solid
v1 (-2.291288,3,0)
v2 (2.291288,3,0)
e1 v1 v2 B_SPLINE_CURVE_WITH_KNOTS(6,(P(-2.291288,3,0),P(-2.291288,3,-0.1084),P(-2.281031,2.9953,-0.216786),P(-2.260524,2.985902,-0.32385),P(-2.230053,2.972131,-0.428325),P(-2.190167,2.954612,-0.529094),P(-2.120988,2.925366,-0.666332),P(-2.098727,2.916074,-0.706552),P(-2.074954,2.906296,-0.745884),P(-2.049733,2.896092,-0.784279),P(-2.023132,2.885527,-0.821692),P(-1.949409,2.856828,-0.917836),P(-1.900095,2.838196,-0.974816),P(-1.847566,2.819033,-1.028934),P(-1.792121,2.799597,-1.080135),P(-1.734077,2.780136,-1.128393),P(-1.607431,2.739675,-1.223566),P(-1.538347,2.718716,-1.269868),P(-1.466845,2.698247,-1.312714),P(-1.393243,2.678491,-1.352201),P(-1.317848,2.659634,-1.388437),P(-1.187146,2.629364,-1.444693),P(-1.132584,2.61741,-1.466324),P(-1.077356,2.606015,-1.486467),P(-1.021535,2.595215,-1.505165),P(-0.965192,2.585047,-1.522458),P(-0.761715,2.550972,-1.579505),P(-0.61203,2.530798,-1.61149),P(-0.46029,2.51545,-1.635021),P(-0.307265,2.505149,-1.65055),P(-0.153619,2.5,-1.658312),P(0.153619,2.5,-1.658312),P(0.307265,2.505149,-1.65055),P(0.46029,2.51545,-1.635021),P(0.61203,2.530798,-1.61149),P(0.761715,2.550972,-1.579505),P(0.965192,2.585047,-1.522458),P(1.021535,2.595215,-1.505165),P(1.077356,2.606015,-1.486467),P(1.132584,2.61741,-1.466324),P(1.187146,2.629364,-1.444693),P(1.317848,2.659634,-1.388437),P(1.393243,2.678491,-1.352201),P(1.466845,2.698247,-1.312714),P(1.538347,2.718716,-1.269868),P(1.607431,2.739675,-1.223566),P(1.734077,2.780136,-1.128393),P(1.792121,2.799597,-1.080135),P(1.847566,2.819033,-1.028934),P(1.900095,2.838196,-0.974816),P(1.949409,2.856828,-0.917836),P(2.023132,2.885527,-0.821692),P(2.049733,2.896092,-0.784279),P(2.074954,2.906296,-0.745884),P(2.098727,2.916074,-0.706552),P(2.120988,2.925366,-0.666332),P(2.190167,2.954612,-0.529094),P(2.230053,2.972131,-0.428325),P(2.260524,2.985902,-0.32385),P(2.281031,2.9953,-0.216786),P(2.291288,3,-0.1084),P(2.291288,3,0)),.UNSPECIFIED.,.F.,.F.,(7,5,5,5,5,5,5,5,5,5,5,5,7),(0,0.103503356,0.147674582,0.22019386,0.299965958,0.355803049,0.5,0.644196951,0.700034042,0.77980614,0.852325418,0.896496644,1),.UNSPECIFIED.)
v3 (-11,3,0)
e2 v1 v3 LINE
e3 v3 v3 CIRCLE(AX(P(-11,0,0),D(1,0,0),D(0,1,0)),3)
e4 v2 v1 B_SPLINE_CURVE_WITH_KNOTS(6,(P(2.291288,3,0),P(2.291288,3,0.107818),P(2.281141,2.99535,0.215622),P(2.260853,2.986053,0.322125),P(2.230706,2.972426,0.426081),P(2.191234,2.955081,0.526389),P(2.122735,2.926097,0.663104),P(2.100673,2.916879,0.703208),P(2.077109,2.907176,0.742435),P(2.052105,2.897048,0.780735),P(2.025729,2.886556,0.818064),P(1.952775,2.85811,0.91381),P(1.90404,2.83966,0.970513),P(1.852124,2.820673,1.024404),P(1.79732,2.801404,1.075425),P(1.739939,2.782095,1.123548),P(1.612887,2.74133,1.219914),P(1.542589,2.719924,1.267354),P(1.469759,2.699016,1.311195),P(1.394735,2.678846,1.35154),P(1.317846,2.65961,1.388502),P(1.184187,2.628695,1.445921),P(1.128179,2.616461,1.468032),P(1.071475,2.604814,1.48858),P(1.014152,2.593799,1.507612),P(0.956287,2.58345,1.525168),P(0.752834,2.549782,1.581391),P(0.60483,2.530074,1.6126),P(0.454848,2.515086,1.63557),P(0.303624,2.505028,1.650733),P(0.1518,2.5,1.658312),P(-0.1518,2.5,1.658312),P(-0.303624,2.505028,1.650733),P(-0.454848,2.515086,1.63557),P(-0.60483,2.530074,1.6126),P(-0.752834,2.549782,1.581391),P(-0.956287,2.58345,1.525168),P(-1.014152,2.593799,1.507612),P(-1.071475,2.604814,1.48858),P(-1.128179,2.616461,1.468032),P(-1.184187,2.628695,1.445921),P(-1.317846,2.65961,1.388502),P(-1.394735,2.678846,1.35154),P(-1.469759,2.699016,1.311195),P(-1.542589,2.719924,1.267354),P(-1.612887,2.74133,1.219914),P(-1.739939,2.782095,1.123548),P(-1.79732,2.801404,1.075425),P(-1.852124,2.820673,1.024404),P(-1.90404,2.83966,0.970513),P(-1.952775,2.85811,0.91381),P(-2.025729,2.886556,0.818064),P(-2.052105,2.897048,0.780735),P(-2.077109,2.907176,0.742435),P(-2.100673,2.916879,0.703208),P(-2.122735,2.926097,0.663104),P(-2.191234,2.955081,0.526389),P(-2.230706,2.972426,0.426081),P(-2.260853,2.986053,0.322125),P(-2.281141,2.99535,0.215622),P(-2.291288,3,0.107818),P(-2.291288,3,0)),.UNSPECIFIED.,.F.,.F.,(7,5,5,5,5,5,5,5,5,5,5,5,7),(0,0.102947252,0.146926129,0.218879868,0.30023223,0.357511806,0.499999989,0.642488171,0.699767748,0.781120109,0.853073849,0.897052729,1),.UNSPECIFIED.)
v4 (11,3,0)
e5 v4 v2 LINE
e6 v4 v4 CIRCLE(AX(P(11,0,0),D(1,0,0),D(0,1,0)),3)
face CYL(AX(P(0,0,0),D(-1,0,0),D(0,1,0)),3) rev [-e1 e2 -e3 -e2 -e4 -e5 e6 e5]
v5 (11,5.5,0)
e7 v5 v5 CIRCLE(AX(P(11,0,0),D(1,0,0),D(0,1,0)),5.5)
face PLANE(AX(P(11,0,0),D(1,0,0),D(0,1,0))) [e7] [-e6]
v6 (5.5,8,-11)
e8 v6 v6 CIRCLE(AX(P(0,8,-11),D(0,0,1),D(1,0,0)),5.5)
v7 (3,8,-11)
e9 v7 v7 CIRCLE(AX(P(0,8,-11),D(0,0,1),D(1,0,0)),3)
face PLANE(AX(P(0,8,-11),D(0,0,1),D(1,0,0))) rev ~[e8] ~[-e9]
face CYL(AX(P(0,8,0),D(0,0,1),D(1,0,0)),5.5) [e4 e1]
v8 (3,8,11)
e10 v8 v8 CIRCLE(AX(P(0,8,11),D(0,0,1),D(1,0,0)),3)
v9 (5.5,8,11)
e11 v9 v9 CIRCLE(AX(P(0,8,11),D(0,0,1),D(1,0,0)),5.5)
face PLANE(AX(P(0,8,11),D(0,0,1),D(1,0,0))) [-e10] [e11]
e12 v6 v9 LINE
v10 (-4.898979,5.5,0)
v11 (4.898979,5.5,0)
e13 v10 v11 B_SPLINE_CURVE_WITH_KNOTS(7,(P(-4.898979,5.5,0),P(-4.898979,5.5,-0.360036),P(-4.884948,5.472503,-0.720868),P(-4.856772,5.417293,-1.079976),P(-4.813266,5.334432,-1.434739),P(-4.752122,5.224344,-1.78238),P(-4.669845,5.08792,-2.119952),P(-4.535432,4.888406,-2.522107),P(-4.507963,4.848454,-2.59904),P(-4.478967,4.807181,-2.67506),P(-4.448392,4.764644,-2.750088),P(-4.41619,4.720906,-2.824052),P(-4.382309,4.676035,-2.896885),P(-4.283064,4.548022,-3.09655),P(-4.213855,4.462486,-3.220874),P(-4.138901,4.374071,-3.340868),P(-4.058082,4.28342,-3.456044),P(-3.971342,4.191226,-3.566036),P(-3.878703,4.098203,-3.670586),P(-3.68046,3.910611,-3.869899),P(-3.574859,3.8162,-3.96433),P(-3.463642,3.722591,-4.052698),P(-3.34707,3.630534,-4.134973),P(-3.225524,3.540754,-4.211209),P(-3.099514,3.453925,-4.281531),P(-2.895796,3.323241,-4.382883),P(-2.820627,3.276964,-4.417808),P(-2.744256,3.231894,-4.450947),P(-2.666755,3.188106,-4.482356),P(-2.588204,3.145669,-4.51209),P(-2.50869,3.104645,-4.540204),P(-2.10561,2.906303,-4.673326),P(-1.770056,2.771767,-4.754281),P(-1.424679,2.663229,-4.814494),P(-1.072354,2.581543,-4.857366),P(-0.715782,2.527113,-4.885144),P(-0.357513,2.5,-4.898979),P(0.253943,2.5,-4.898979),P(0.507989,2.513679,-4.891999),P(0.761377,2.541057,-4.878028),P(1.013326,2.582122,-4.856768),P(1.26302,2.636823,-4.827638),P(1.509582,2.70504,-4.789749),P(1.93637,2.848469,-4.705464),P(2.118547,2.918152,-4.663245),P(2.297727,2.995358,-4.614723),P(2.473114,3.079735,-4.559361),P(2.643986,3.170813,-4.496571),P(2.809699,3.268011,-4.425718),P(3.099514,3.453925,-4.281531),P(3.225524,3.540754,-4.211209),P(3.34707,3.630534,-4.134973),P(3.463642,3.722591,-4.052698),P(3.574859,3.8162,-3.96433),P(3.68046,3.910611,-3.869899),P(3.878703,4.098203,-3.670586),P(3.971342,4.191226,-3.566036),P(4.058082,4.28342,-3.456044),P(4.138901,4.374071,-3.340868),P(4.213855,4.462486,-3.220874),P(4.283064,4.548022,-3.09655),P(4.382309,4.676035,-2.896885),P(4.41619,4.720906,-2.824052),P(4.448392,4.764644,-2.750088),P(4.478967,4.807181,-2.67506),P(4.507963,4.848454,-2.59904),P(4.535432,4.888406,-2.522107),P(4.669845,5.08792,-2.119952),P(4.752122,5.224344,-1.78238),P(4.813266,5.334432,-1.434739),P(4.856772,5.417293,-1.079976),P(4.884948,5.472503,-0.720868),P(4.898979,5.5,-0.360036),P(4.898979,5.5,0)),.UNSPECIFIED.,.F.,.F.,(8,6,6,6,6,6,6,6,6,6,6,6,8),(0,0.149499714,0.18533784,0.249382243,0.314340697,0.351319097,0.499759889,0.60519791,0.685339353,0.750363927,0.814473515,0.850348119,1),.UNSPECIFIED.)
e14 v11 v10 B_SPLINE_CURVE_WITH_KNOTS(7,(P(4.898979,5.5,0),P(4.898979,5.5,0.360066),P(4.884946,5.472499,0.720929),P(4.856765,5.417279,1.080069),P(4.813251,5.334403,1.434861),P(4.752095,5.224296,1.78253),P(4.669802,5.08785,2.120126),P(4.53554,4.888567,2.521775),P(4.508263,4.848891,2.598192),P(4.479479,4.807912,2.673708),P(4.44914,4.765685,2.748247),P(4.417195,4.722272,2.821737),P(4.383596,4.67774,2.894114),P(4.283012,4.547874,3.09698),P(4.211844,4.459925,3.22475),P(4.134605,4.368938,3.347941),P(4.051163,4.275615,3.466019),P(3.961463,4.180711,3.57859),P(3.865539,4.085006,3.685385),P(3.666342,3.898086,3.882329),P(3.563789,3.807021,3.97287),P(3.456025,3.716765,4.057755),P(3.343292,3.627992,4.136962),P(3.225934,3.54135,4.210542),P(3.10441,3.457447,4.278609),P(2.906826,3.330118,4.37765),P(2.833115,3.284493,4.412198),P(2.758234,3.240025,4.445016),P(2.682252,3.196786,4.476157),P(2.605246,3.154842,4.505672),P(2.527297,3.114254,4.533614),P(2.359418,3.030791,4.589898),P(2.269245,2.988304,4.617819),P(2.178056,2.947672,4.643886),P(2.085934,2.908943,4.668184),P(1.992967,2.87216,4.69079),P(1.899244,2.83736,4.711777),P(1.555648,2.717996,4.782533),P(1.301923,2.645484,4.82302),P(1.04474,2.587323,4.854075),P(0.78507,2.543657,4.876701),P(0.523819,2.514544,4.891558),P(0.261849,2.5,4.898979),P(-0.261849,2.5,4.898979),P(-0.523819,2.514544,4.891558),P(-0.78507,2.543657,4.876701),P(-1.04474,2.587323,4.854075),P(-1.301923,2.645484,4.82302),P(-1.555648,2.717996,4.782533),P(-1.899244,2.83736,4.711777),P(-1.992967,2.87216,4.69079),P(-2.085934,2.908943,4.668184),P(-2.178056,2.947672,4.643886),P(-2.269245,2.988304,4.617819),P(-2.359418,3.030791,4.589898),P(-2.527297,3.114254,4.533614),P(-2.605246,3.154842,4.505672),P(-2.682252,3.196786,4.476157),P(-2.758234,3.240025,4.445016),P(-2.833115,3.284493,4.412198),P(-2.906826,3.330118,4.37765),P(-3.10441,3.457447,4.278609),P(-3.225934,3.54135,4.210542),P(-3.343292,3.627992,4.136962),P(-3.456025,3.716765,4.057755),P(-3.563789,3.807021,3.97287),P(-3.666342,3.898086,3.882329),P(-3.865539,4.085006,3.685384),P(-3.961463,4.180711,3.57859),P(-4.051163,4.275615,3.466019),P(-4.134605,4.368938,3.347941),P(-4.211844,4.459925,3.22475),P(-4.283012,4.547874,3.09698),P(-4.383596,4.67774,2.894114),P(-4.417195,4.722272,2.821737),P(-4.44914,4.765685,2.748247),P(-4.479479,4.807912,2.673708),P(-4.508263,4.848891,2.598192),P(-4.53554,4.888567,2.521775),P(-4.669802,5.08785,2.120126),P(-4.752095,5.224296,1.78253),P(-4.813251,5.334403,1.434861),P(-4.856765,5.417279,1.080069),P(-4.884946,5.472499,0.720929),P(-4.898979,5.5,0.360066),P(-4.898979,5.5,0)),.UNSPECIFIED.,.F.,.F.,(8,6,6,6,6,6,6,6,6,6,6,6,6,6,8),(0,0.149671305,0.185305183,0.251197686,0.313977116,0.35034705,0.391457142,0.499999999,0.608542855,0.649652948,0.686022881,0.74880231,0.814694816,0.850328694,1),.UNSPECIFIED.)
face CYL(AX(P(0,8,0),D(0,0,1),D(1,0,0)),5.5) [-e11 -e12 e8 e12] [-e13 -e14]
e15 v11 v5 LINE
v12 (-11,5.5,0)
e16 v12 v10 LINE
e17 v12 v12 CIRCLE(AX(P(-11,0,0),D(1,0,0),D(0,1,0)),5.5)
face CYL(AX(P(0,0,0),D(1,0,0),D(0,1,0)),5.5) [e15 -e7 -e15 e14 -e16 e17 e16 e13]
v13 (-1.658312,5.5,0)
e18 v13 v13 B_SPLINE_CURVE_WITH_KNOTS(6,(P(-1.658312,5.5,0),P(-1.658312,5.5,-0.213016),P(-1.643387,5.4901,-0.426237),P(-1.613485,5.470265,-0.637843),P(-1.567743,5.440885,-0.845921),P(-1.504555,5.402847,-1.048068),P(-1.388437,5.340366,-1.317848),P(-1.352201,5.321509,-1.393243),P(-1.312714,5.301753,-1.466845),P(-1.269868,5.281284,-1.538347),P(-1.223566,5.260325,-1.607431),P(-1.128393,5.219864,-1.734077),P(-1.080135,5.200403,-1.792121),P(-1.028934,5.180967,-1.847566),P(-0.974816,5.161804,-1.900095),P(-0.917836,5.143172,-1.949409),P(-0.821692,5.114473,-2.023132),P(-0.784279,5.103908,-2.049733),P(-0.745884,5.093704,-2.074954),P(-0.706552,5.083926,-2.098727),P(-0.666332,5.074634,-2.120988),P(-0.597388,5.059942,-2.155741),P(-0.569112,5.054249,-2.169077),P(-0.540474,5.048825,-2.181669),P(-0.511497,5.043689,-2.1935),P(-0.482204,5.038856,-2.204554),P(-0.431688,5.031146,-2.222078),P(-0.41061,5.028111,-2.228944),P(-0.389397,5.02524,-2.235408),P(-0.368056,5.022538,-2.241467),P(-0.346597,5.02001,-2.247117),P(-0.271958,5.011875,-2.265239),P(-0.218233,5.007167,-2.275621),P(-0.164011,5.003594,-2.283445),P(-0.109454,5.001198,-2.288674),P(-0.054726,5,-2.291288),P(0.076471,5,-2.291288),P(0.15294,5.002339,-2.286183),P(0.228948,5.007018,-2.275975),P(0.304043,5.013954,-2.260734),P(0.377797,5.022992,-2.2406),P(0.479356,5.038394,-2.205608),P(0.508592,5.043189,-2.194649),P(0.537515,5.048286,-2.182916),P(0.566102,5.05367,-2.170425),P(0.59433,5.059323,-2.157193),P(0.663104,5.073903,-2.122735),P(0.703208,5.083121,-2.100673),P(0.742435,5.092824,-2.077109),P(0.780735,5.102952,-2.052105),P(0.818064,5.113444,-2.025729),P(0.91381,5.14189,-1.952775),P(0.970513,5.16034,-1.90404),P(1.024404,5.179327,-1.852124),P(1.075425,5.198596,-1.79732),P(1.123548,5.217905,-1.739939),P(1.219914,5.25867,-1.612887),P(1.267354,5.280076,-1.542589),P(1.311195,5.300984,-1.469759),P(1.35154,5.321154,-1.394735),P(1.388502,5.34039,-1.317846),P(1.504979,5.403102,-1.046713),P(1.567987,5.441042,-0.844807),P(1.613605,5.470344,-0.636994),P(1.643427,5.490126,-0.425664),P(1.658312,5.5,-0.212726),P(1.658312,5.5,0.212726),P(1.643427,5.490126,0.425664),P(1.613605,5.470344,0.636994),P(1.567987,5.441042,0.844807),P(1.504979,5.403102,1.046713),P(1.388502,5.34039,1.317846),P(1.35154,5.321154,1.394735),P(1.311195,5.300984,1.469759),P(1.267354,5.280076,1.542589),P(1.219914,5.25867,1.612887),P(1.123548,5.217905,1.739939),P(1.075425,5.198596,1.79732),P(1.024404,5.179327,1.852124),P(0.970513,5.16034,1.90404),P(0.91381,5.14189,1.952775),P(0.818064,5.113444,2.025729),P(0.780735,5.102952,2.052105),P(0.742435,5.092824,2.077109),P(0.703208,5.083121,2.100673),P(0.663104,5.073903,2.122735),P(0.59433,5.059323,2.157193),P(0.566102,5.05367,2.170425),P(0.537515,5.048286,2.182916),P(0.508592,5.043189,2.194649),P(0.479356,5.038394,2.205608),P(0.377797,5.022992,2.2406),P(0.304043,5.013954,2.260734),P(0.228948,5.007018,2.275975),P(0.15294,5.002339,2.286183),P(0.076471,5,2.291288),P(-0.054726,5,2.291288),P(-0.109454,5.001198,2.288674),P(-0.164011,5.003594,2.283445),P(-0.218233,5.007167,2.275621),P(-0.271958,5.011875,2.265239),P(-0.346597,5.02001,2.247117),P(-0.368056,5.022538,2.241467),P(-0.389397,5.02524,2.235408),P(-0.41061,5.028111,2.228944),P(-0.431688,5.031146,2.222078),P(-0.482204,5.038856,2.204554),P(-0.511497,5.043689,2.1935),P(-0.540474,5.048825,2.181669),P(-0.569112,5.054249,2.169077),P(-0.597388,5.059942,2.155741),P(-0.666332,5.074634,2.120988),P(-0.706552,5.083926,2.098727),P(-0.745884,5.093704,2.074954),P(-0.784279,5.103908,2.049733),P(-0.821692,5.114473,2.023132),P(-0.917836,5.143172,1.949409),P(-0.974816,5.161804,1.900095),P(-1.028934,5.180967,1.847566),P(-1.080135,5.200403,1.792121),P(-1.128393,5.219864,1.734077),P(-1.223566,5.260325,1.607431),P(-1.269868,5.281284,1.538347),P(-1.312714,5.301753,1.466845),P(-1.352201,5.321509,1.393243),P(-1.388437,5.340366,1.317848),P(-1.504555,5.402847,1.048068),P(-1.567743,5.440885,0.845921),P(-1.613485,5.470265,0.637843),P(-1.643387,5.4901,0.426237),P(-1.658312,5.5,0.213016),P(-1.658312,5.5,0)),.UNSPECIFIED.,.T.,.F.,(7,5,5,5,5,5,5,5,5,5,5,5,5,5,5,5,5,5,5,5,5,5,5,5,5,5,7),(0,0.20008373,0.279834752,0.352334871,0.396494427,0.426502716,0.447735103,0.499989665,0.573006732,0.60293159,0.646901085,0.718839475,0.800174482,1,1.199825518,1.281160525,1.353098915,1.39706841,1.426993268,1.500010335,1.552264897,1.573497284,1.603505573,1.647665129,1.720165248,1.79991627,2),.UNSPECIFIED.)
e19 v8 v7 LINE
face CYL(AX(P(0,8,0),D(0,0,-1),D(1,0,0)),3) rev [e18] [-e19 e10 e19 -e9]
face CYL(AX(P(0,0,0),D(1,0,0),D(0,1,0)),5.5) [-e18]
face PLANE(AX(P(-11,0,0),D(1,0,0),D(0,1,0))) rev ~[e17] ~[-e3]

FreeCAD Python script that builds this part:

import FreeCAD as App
import Part
import Sketcher
from FreeCAD import Vector
Q = App.Units.Quantity

doc = App.newDocument("Part")
params = doc.addObject("Spreadsheet::Sheet", "Params")
for row, (alias, value) in enumerate([
    ("sketch1_diameter", "11 mm"),
    ("sketch1_diameter2", "6 mm"),
    ("pad1_length", "22 mm"),
    ("sketch2_diameter", "11 mm"),
    ("sketch2_diameter2", "6 mm"),
    ("pad2_length", "22 mm"),
], start=1):
    params.set(f"A{row}", alias)
    params.set(f"B{row}", "=" + value)
    params.setAlias(f"B{row}", alias)

body = doc.addObject("PartDesign::Body", "Body")

# Sketch on YZ plane
sketch1 = body.newObject("Sketcher::SketchObject", "Sketch")
sketch1.AttachmentSupport = (doc.getObject("YZ_Plane"), [""])
sketch1.MapMode = "FlatFace"
sketch1.addGeometry(Part.Circle(Vector(0, 0, 0), Vector(0, 0, 1), 5.5), False)
sketch1.addGeometry(Part.Circle(Vector(0, 0, 0), Vector(0, 0, 1), 3), False)
sketch1.addConstraint(Sketcher.Constraint("Coincident", 0, 3, -1, 1))
sketch1.addConstraint(Sketcher.Constraint("Coincident", 1, 3, -1, 1))
sketch1.addConstraint(Sketcher.Constraint("Diameter", 0, Q("11 mm")))
sketch1.addConstraint(Sketcher.Constraint("Diameter", 1, Q("6 mm")))
sketch1.setExpression("Constraints[2]", "Params.sketch1_diameter")
sketch1.setExpression("Constraints[3]", "Params.sketch1_diameter2")
pad1 = body.newObject("PartDesign::Pad", "Pad")
pad1.Profile = sketch1
pad1.setExpression("Length", "Params.pad1_length")
pad1.Midplane = True

# Sketch on XY plane
sketch2 = body.newObject("Sketcher::SketchObject", "Sketch001")
sketch2.AttachmentSupport = (doc.getObject("XY_Plane"), [""])
sketch2.MapMode = "FlatFace"
sketch2.addGeometry(Part.Circle(Vector(0, 8, 0), Vector(0, 0, 1), 5.5), False)
sketch2.addGeometry(Part.Circle(Vector(0, 8, 0), Vector(0, 0, 1), 3), False)
sketch2.addConstraint(Sketcher.Constraint("Coincident", 1, 3, 0, 3))
sketch2.addConstraint(Sketcher.Constraint("PointOnObject", 0, 3, -2))
sketch2.addConstraint(Sketcher.Constraint("Diameter", 0, Q("11 mm")))
sketch2.addConstraint(Sketcher.Constraint("Diameter", 1, Q("6 mm")))
sketch2.addConstraint(Sketcher.Constraint("DistanceY", -1, 1, 0, 3, Q("8 mm")))
sketch2.setExpression("Constraints[2]", "Params.sketch2_diameter")
sketch2.setExpression("Constraints[3]", "Params.sketch2_diameter2")
pad2 = body.newObject("PartDesign::Pad", "Pad001")
pad2.Profile = sketch2
pad2.setExpression("Length", "Params.pad2_length")
pad2.Midplane = True

doc.recompute()
